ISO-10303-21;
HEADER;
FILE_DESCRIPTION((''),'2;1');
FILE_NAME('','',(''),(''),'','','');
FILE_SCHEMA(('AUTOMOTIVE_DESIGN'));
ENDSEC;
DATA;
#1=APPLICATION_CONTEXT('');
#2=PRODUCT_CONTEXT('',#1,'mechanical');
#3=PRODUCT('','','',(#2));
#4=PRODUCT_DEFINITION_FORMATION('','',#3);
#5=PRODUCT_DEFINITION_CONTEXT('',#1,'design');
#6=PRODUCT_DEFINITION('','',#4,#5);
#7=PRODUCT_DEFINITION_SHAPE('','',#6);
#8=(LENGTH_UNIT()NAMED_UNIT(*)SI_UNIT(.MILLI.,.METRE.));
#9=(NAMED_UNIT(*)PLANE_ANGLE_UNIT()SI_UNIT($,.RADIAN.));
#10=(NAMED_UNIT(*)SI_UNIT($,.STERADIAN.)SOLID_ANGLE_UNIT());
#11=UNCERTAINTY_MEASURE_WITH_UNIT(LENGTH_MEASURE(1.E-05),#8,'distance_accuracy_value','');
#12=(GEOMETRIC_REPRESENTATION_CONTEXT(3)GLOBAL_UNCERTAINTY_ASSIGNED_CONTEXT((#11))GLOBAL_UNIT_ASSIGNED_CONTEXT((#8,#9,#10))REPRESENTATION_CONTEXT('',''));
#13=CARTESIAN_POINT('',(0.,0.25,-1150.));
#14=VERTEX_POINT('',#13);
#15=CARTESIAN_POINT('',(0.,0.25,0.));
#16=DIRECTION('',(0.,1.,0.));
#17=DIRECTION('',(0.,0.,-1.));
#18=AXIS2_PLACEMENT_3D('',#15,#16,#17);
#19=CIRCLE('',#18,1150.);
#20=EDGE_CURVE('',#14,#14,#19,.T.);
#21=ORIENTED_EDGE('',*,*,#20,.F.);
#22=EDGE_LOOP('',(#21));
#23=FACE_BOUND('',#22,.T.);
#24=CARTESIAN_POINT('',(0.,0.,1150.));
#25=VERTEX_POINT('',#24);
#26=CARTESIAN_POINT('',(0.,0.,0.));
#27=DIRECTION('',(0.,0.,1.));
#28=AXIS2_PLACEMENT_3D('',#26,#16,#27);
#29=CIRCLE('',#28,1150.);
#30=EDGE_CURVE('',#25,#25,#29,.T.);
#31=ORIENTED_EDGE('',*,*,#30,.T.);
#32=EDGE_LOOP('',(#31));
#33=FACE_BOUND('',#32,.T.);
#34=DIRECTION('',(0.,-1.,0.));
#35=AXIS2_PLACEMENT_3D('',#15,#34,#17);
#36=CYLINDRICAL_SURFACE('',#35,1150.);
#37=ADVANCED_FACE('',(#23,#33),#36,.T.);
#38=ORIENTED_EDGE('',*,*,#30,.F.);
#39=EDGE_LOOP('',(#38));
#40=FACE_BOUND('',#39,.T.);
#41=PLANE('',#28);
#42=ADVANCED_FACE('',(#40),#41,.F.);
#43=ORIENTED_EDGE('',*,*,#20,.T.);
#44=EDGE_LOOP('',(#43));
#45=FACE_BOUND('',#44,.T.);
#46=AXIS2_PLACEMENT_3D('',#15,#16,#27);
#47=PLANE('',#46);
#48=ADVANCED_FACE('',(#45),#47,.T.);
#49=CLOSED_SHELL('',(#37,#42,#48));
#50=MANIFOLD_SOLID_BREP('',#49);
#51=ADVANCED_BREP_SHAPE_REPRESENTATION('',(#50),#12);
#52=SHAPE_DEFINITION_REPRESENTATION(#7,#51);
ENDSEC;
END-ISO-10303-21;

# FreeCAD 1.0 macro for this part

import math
import FreeCAD as App
import Part
import Sketcher

V = App.Vector
Q = App.Units.Quantity

doc = App.newDocument("Part")
body = doc.addObject("PartDesign::Body", "Body")

sketch1 = body.newObject("Sketcher::SketchObject", "Sketch")
sketch1.AttachmentSupport = (doc.getObject("XZ_Plane"), [""])
sketch1.MapMode = "FlatFace"
sketch1.addGeometry([
    Part.LineSegment(V(973, -612, 0), V(0, 0, 0)),
    Part.LineSegment(V(0, 0, 0), V(1017, 537, 0)),
    Part.ArcOfCircle(Part.Circle(V(0, 0, 0), V(0, 0, 1), 1150), math.radians(0), math.radians(28)),
    Part.ArcOfCircle(Part.Circle(V(0, 0, 0), V(0, 0, 1), 1150), math.radians(-32), math.radians(0)),
], False)
sketch1.addConstraint([
    Sketcher.Constraint("Coincident", 0, 2, 1, 1),
    Sketcher.Constraint("Coincident", 1, 2, 2, 2),
    Sketcher.Constraint("Coincident", 2, 1, 3, 2),
    Sketcher.Constraint("Coincident", 3, 1, 0, 1),
    Sketcher.Constraint("Coincident", 2, 3, -1, 1),
    Sketcher.Constraint("Coincident", 3, 3, -1, 1),
    Sketcher.Constraint("Coincident", 0, 2, -1, 1),
    Sketcher.Constraint("PointOnObject", 2, 1, -1),
    Sketcher.Constraint("Radius", 2, Q("1150 mm")),
    Sketcher.Constraint("DistanceX", -1, 1, 1, 2, Q("1016.955088 mm")),
    Sketcher.Constraint("Angle", 0, Q("147.833422 deg")),
])
pad1 = body.newObject("PartDesign::Pad", "Pad")
pad1.Profile = sketch1
pad1.Length = 0.25
pad1.Reversed = True
doc.recompute()

polarpattern = body.newObject("PartDesign::PolarPattern", "PolarPattern")
polarpattern.Originals = [pad1]
polarpattern.Axis = (doc.getObject("Y_Axis"), [""])
polarpattern.Angle = 360
polarpattern.Occurrences = 6
body.Tip = polarpattern

doc.recompute()
